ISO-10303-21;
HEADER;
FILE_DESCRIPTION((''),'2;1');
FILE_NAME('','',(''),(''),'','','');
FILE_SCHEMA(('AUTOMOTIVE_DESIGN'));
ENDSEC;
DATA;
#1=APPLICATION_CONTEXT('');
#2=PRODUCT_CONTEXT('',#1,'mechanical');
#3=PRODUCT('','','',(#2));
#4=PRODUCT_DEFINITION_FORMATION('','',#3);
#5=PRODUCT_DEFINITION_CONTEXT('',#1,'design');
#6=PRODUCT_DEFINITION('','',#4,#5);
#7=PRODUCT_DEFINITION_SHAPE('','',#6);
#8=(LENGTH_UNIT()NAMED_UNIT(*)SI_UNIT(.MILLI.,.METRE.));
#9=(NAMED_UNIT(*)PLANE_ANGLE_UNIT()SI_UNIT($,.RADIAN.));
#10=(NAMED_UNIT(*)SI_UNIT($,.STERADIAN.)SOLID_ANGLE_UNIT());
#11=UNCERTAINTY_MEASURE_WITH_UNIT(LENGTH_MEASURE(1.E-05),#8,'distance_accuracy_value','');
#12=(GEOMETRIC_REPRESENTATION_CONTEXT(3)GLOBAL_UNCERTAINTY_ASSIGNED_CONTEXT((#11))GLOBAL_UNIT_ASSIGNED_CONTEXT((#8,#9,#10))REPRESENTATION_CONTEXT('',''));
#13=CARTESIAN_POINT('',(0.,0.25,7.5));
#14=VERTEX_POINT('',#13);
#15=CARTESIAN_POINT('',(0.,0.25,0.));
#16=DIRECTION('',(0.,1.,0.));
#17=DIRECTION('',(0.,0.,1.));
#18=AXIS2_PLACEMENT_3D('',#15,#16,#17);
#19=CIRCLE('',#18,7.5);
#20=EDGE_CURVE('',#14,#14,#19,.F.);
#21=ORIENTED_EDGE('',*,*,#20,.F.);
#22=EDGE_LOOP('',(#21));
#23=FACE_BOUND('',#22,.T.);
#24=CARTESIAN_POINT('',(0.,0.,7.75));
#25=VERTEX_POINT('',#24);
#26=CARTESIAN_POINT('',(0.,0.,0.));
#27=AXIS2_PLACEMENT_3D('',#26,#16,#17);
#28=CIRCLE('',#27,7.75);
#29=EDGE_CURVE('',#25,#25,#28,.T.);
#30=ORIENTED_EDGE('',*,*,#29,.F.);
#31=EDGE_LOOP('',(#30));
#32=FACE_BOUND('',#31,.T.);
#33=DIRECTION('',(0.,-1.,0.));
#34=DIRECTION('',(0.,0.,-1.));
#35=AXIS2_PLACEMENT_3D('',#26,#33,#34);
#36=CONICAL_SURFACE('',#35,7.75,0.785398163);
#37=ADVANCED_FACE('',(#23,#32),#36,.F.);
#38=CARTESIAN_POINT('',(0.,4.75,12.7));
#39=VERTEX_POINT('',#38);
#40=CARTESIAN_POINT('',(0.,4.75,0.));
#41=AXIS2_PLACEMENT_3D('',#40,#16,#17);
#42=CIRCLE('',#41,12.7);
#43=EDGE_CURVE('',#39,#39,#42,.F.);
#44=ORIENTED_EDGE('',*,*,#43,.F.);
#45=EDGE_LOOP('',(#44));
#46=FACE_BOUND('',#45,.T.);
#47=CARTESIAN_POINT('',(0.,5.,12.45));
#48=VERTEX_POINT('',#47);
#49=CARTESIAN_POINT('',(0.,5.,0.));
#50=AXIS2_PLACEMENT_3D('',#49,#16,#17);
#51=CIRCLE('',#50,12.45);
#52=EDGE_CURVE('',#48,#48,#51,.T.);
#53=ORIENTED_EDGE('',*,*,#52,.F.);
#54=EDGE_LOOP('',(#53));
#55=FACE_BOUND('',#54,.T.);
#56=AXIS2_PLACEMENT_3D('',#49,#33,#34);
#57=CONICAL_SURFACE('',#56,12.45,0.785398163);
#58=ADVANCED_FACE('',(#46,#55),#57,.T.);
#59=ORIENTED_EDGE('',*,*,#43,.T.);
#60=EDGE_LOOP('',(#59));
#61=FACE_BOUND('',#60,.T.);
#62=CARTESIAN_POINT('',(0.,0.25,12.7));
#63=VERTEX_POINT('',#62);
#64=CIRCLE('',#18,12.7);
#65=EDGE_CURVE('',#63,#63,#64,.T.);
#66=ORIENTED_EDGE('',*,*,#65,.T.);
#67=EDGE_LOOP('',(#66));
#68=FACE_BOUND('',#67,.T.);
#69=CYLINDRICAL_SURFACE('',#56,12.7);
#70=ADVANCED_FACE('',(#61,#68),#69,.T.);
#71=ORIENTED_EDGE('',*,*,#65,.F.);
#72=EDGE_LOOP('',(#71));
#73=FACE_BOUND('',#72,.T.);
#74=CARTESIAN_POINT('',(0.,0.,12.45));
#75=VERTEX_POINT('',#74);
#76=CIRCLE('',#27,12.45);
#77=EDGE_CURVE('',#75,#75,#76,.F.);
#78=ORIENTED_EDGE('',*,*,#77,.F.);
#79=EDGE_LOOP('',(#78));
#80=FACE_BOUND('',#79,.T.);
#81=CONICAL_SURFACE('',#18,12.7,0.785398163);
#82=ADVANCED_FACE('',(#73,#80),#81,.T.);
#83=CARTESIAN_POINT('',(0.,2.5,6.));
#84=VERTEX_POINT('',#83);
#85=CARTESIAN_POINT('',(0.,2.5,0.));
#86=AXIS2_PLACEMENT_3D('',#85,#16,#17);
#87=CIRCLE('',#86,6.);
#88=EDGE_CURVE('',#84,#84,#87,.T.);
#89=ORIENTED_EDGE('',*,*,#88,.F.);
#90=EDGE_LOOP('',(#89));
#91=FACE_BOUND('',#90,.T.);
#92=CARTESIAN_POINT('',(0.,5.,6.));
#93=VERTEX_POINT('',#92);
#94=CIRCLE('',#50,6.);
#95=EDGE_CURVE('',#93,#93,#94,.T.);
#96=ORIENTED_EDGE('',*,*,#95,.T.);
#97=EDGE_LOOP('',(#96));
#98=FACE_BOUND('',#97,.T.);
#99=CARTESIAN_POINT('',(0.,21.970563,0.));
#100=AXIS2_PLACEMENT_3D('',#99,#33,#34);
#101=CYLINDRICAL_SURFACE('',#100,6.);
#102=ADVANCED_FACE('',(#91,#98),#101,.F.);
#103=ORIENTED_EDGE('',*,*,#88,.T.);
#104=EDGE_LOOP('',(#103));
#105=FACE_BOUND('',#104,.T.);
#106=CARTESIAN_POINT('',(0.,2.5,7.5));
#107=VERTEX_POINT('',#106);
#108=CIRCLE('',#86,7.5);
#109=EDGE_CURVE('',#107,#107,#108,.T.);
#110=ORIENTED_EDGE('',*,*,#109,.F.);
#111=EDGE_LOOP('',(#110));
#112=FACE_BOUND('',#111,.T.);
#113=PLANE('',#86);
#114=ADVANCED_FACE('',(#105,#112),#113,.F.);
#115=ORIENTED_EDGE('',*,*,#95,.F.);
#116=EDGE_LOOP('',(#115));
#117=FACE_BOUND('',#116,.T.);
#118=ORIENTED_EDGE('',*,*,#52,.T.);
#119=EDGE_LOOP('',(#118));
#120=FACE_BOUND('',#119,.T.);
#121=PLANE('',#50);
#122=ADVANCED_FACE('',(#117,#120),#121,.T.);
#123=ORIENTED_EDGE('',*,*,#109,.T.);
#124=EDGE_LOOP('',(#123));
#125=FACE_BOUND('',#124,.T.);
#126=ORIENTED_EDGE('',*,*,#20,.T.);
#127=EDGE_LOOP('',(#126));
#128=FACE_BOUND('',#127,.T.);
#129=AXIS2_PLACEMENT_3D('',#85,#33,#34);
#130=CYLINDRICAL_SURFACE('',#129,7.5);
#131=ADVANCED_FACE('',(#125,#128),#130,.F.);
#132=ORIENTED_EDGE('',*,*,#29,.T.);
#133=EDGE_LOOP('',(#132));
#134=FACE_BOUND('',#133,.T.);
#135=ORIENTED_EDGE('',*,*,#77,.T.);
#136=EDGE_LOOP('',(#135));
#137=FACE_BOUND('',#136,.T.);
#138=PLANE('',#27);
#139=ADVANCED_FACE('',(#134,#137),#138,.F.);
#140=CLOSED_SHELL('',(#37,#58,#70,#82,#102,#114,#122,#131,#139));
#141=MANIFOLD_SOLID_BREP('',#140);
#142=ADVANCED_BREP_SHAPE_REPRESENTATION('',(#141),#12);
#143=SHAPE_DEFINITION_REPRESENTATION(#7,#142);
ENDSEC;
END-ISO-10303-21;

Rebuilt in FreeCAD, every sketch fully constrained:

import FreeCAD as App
import Part
import Sketcher


def edges_at(feature, points):
    """Names of the edges that pass closest to the given points."""
    edges = feature.Shape.Edges
    near = lambda p: min(range(len(edges)), key=lambda i: edges[i].distToShape(Part.Vertex(*p))[0])
    return sorted({f"Edge{near(p) + 1}" for p in points})

doc = App.newDocument("Part")
body = doc.addObject("PartDesign::Body", "Body")

# Sketch on XZ plane
sketch1 = body.newObject("Sketcher::SketchObject", "Sketch")
sketch1.AttachmentSupport = (doc.getObject("XZ_Plane"), [""])
sketch1.MapMode = "FlatFace"
sketch1.addGeometry(Part.Circle(App.Vector(0, 0, 0), App.Vector(0, 0, 1), 13), False)
sketch1.addConstraint([
    Sketcher.Constraint("Coincident", 0, 3, -1, 1),
    Sketcher.Constraint("Diameter", 0, 25.4),
])
pad1 = body.newObject("PartDesign::Pad", "Pad")
pad1.Profile = sketch1
pad1.Length = 5
pad1.Reversed = True

# Sketch on XZ plane
sketch2 = body.newObject("Sketcher::SketchObject", "Sketch001")
sketch2.AttachmentSupport = (doc.getObject("XZ_Plane"), [""])
sketch2.MapMode = "FlatFace"
sketch2.addGeometry(Part.Circle(App.Vector(0, 0, 0), App.Vector(0, 0, 1), 6), False)
sketch2.addConstraint([
    Sketcher.Constraint("Coincident", 0, 3, -1, 1),
    Sketcher.Constraint("Diameter", 0, 12.0),
])
pocket1 = body.newObject("PartDesign::Pocket", "Pocket")
pocket1.Profile = sketch2
pocket1.Length = 5

# Sketch on XZ plane
sketch3 = body.newObject("Sketcher::SketchObject", "Sketch002")
sketch3.AttachmentSupport = (doc.getObject("XZ_Plane"), [""])
sketch3.MapMode = "FlatFace"
sketch3.addGeometry([
    Part.Circle(App.Vector(0, 0, 0), App.Vector(0, 0, 1), 8),
    Part.Circle(App.Vector(0, 0, 0), App.Vector(0, 0, 1), 6),
], False)
sketch3.addConstraint([
    Sketcher.Constraint("Coincident", 0, 3, -1, 1),
    Sketcher.Constraint("Coincident", 1, 3, -1, 1),
    Sketcher.Constraint("Diameter", 0, 15.0),
    Sketcher.Constraint("Diameter", 1, 12.0),
])
pocket2 = body.newObject("PartDesign::Pocket", "Pocket001")
pocket2.Profile = sketch3
pocket2.Length = 2.5
doc.recompute()

chamfer = body.newObject("PartDesign::Chamfer", "Chamfer")
chamfer.Base = (pocket2, edges_at(pocket2, [(0, 0, -7.5), (0, 0, -12.7), (0, 5, -12.7)]))
chamfer.Size = 0.25

doc.recompute()
